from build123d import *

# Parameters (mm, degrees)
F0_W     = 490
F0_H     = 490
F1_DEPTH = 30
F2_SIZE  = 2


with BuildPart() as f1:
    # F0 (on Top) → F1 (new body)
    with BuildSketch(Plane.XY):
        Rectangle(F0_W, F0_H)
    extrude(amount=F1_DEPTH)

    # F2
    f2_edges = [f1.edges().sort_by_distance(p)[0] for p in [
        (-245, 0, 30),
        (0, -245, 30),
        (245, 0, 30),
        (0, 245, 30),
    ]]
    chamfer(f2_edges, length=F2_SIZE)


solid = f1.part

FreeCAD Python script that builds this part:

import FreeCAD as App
import Part
import Sketcher


def edges_at(feature, points):
    """Names of the edges that pass closest to the given points."""
    edges = feature.Shape.Edges
    near = lambda p: min(range(len(edges)), key=lambda i: edges[i].distToShape(Part.Vertex(*p))[0])
    return sorted({f"Edge{near(p) + 1}" for p in points})

doc = App.newDocument("Part")
body = doc.addObject("PartDesign::Body", "Body")

# Sketch on XY plane
sketch1 = body.newObject("Sketcher::SketchObject", "Sketch")
sketch1.AttachmentSupport = (doc.getObject("XY_Plane"), [""])
sketch1.MapMode = "FlatFace"
sketch1.addGeometry([
    Part.LineSegment(App.Vector(-245, 245, 0), App.Vector(-245, -245, 0)),
    Part.LineSegment(App.Vector(-245, -245, 0), App.Vector(245, -245, 0)),
    Part.LineSegment(App.Vector(245, -245, 0), App.Vector(245, 245, 0)),
    Part.LineSegment(App.Vector(245, 245, 0), App.Vector(-245, 245, 0)),
], False)
sketch1.addConstraint([
    Sketcher.Constraint("Coincident", 0, 2, 1, 1),
    Sketcher.Constraint("Coincident", 1, 2, 2, 1),
    Sketcher.Constraint("Coincident", 2, 2, 3, 1),
    Sketcher.Constraint("Coincident", 3, 2, 0, 1),
    Sketcher.Constraint("Vertical", 0),
    Sketcher.Constraint("Horizontal", 1),
    Sketcher.Constraint("Vertical", 2),
    Sketcher.Constraint("Horizontal", 3),
    Sketcher.Constraint("Symmetric", 0, 2, 2, 2, -1, 1),
    Sketcher.Constraint("Equal", 3, 0),
    Sketcher.Constraint("DistanceX", 1, 1, 1, 2, 490.0),
])
pad1 = body.newObject("PartDesign::Pad", "Pad")
pad1.Profile = sketch1
pad1.Length = 30
doc.recompute()

chamfer = body.newObject("PartDesign::Chamfer", "Chamfer")
chamfer.Base = (pad1, edges_at(pad1, [
    (-245, 0, 30),
    (0, -245, 30),
    (245, 0, 30),
    (0, 245, 30),
]))
chamfer.Size = 2

doc.recompute()
